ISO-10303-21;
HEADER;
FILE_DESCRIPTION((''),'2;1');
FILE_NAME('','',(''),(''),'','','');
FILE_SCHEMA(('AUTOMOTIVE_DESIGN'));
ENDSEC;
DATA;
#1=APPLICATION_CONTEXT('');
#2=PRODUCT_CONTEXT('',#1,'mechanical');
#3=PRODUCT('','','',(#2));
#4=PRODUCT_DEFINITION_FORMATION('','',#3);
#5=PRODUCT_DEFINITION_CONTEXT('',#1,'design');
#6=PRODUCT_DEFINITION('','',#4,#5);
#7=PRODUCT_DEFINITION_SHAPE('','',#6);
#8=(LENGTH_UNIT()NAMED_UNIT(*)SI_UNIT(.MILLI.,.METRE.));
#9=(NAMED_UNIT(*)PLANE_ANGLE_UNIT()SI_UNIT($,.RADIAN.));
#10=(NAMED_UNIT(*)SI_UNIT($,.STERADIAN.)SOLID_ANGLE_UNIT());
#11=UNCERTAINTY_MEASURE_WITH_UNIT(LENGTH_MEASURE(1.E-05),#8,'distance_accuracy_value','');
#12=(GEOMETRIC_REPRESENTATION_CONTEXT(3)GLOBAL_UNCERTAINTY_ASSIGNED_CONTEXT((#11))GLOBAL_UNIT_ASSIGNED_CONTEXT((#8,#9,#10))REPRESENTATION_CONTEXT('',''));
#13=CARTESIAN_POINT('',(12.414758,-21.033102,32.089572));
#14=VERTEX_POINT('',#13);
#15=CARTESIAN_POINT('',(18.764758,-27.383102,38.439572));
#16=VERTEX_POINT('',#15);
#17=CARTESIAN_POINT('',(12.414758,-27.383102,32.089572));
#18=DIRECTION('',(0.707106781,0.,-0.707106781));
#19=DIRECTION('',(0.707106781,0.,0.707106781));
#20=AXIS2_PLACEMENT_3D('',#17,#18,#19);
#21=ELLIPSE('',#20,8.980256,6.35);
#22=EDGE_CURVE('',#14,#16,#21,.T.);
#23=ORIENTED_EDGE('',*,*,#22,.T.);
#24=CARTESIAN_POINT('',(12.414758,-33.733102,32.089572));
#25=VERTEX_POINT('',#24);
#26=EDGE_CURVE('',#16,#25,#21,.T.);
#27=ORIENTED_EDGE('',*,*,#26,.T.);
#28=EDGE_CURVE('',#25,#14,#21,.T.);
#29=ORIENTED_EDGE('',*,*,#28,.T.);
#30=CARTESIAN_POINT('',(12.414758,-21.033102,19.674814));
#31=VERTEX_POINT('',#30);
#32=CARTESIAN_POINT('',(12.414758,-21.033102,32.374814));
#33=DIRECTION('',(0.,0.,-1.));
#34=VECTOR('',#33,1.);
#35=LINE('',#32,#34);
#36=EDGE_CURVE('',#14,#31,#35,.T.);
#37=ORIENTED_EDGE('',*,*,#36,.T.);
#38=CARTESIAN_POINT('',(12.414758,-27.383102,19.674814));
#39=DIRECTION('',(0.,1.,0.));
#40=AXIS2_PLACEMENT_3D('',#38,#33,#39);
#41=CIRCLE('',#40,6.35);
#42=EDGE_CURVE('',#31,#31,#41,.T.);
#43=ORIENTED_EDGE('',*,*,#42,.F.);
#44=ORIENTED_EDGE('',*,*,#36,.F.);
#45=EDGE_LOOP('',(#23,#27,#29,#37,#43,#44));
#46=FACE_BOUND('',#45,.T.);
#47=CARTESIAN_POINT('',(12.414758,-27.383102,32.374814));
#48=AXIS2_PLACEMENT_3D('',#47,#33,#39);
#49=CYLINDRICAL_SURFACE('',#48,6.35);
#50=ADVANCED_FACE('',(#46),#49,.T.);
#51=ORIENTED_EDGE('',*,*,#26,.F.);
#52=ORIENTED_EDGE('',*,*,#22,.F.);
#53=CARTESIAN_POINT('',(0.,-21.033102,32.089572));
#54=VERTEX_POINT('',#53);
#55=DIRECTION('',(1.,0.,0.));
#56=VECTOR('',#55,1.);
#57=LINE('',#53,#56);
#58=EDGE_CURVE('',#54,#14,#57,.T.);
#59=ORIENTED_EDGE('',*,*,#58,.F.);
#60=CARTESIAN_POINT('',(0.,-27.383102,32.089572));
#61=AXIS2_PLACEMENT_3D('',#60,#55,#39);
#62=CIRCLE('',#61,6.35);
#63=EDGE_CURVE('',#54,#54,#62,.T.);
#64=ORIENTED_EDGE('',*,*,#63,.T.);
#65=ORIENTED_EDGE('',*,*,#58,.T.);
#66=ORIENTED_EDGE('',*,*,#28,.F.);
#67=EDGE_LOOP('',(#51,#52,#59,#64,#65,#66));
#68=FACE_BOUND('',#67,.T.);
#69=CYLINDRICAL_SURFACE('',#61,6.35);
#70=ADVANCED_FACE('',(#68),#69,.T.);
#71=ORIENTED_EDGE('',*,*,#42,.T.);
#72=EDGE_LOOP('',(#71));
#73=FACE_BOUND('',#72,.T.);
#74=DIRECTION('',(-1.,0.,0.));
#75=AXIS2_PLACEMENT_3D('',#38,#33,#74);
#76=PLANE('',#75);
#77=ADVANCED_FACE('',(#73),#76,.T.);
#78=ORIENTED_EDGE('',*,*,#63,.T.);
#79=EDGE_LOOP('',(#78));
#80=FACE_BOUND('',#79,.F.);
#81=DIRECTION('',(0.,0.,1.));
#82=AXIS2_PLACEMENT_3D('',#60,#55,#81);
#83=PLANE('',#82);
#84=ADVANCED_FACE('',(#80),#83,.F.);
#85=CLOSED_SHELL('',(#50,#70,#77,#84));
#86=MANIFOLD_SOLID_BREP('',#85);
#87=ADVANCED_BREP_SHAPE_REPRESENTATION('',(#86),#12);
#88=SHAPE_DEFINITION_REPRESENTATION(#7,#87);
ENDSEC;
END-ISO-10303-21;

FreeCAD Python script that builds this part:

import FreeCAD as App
import Part
import Sketcher
from FreeCAD import Vector
Q = App.Units.Quantity

doc = App.newDocument("Part")
body = doc.addObject("PartDesign::Body", "Body")

# Sketch on YZ plane
sketch1 = body.newObject("Sketcher::SketchObject", "Sketch")
sketch1.AttachmentSupport = (doc.getObject("YZ_Plane"), [""])
sketch1.MapMode = "FlatFace"
sketch1.addGeometry(Part.Circle(Vector(-27, 32, 0), Vector(0, 0, 1), 6), False)
sketch1.addConstraint([
    Sketcher.Constraint("Diameter", 0, Q("0.5 in")),
    Sketcher.Constraint("DistanceX", 0, 3, -1, 1, Q("27.383102 mm")),
    Sketcher.Constraint("DistanceY", -1, 1, 0, 3, Q("32.089572 mm")),
])

# Sketch on XZ plane
sketch2 = body.newObject("Sketcher::SketchObject", "Sketch001")
sketch2.AttachmentSupport = (doc.getObject("XZ_Plane"), [""])
sketch2.MapMode = "FlatFace"
sketch2.addGeometry([
    Part.LineSegment(Vector(0, 32, 0), Vector(13, 32, 0)),
    Part.LineSegment(Vector(13, 32, 0), Vector(13, 20, 0)),
], False)
sketch2.addConstraint([
    Sketcher.Constraint("Coincident", 0, 2, 1, 1),
    Sketcher.Constraint("Horizontal", 0),
    Sketcher.Constraint("Vertical", 1),
    Sketcher.Constraint("PointOnObject", 0, 1, -2),
    Sketcher.Constraint("Equal", 0, 1),
    Sketcher.Constraint("DistanceX", 0, 1, 0, 2, Q("0.5 in")),
    Sketcher.Constraint("DistanceY", -1, 1, 0, 1, Q("32.374814 mm")),
])
doc.recompute()

additivepipe = body.newObject("PartDesign::AdditivePipe", "AdditivePipe")
additivepipe.Profile = sketch1
additivepipe.Spine = (sketch2, ["Edge1", "Edge2"])
additivepipe.Transition = "Right corner"

doc.recompute()
